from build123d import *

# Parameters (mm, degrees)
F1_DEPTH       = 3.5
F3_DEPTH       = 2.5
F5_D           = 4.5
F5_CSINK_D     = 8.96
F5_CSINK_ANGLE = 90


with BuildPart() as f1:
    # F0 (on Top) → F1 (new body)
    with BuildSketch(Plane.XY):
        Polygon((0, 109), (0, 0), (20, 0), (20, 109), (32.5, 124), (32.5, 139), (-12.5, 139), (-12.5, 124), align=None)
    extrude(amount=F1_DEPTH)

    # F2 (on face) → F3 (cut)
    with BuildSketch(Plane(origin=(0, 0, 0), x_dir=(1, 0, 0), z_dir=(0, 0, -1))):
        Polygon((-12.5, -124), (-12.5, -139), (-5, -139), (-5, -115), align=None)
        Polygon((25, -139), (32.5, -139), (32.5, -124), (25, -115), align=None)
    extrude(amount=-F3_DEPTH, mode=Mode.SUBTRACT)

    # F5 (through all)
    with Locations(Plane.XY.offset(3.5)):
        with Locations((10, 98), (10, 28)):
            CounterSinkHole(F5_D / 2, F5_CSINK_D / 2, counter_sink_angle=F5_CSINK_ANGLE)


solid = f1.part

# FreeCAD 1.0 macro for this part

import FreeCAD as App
import Part
import Sketcher
from FreeCAD import Vector
Q = App.Units.Quantity

doc = App.newDocument("Part")
body = doc.addObject("PartDesign::Body", "Body")

sketch1 = body.newObject("Sketcher::SketchObject", "Sketch")
sketch1.AttachmentSupport = (doc.getObject("XY_Plane"), [""])
sketch1.MapMode = "FlatFace"
sketch1.addGeometry(Part.LineSegment(Vector(0, 109, 0), Vector(0, 0, 0)), False)
sketch1.addGeometry(Part.LineSegment(Vector(0, 0, 0), Vector(20, 0, 0)), False)
sketch1.addGeometry(Part.LineSegment(Vector(20, 0, 0), Vector(20, 109, 0)), False)
sketch1.addGeometry(Part.LineSegment(Vector(20, 109, 0), Vector(32, 124, 0)), False)
sketch1.addGeometry(Part.LineSegment(Vector(32, 124, 0), Vector(32, 139, 0)), False)
sketch1.addGeometry(Part.LineSegment(Vector(32, 139, 0), Vector(-12, 139, 0)), False)
sketch1.addGeometry(Part.LineSegment(Vector(-12, 139, 0), Vector(-12, 124, 0)), False)
sketch1.addGeometry(Part.LineSegment(Vector(-12, 124, 0), Vector(0, 109, 0)), False)
sketch1.addConstraint(Sketcher.Constraint("Coincident", 0, 2, 1, 1))
sketch1.addConstraint(Sketcher.Constraint("Coincident", 1, 2, 2, 1))
sketch1.addConstraint(Sketcher.Constraint("Coincident", 2, 2, 3, 1))
sketch1.addConstraint(Sketcher.Constraint("Coincident", 3, 2, 4, 1))
sketch1.addConstraint(Sketcher.Constraint("Coincident", 4, 2, 5, 1))
sketch1.addConstraint(Sketcher.Constraint("Coincident", 5, 2, 6, 1))
sketch1.addConstraint(Sketcher.Constraint("Coincident", 6, 2, 7, 1))
sketch1.addConstraint(Sketcher.Constraint("Coincident", 7, 2, 0, 1))
sketch1.addConstraint(Sketcher.Constraint("Vertical", 0))
sketch1.addConstraint(Sketcher.Constraint("Horizontal", 1))
sketch1.addConstraint(Sketcher.Constraint("Vertical", 2))
sketch1.addConstraint(Sketcher.Constraint("Vertical", 4))
sketch1.addConstraint(Sketcher.Constraint("Horizontal", 5))
sketch1.addConstraint(Sketcher.Constraint("Vertical", 6))
sketch1.addConstraint(Sketcher.Constraint("Coincident", 0, 2, -1, 1))
sketch1.addConstraint(Sketcher.Constraint("Horizontal", 3, 2, 6, 2))
sketch1.addConstraint(Sketcher.Constraint("Horizontal", 2, 2, 7, 2))
sketch1.addConstraint(Sketcher.Constraint("Equal", 3, 7))
sketch1.addConstraint(Sketcher.Constraint("DistanceX", 1, 1, 1, 2, Q("20 mm")))
sketch1.addConstraint(Sketcher.Constraint("DistanceX", 5, 2, 5, 1, Q("45 mm")))
sketch1.addConstraint(Sketcher.Constraint("DistanceY", 0, 2, 0, 1, Q("109 mm")))
sketch1.addConstraint(Sketcher.Constraint("DistanceY", 4, 1, 4, 2, Q("15 mm")))
sketch1.addConstraint(Sketcher.Constraint("DistanceY", -1, 1, 3, 2, Q("124 mm")))
pad1 = body.newObject("PartDesign::Pad", "Pad")
pad1.Profile = sketch1
pad1.Length = 3.5

sketch2 = body.newObject("Sketcher::SketchObject", "Sketch001")
sketch2.AttachmentSupport = (doc.getObject("XY_Plane"), [""])
sketch2.MapMode = "FlatFace"
sketch2.addGeometry(Part.LineSegment(Vector(-12, 124, 0), Vector(-12, 139, 0)), False)
sketch2.addGeometry(Part.LineSegment(Vector(-12, 139, 0), Vector(-5, 139, 0)), False)
sketch2.addGeometry(Part.LineSegment(Vector(-5, 139, 0), Vector(-5, 115, 0)), False)
sketch2.addGeometry(Part.LineSegment(Vector(-5, 115, 0), Vector(-12, 124, 0)), False)
sketch2.addGeometry(Part.LineSegment(Vector(25, 139, 0), Vector(32, 139, 0)), False)
sketch2.addGeometry(Part.LineSegment(Vector(32, 139, 0), Vector(32, 124, 0)), False)
sketch2.addGeometry(Part.LineSegment(Vector(32, 124, 0), Vector(25, 115, 0)), False)
sketch2.addGeometry(Part.LineSegment(Vector(25, 115, 0), Vector(25, 139, 0)), False)
sketch2.addConstraint(Sketcher.Constraint("Coincident", 0, 2, 1, 1))
sketch2.addConstraint(Sketcher.Constraint("Coincident", 1, 2, 2, 1))
sketch2.addConstraint(Sketcher.Constraint("Coincident", 2, 2, 3, 1))
sketch2.addConstraint(Sketcher.Constraint("Coincident", 3, 2, 0, 1))
sketch2.addConstraint(Sketcher.Constraint("Coincident", 4, 2, 5, 1))
sketch2.addConstraint(Sketcher.Constraint("Coincident", 5, 2, 6, 1))
sketch2.addConstraint(Sketcher.Constraint("Coincident", 6, 2, 7, 1))
sketch2.addConstraint(Sketcher.Constraint("Coincident", 7, 2, 4, 1))
sketch2.addConstraint(Sketcher.Constraint("Vertical", 0))
sketch2.addConstraint(Sketcher.Constraint("Horizontal", 1))
sketch2.addConstraint(Sketcher.Constraint("Vertical", 2))
sketch2.addConstraint(Sketcher.Constraint("Horizontal", 4))
sketch2.addConstraint(Sketcher.Constraint("Vertical", 5))
sketch2.addConstraint(Sketcher.Constraint("Vertical", 7))
sketch2.addConstraint(Sketcher.Constraint("Horizontal", 1, 2, 4, 2))
sketch2.addConstraint(Sketcher.Constraint("Horizontal", 3, 2, 5, 2))
sketch2.addConstraint(Sketcher.Constraint("Horizontal", 2, 2, 6, 2))
sketch2.addConstraint(Sketcher.Constraint("Equal", 1, 4))
sketch2.addConstraint(Sketcher.Constraint("DistanceY", 0, 1, 0, 2, Q("15 mm")))
sketch2.addConstraint(Sketcher.Constraint("DistanceY", 2, 2, 2, 1, Q("24 mm")))
sketch2.addConstraint(Sketcher.Constraint("DistanceX", 1, 1, 1, 2, Q("7.5 mm")))
sketch2.addConstraint(Sketcher.Constraint("DistanceY", -1, 1, 0, 2, Q("139 mm")))
sketch2.addConstraint(Sketcher.Constraint("DistanceX", 1, 2, -1, 1, Q("5 mm")))
sketch2.addConstraint(Sketcher.Constraint("DistanceX", -1, 1, 6, 2, Q("25 mm")))
pocket1 = body.newObject("PartDesign::Pocket", "Pocket")
pocket1.Profile = sketch2
pocket1.Length = 2.5
pocket1.Reversed = True

sketch3 = body.newObject("Sketcher::SketchObject", "Sketch002")
sketch3.AttachmentSupport = (doc.getObject("XY_Plane"), [""])
sketch3.MapMode = "FlatFace"
sketch3.AttachmentOffset = App.Placement(Vector(0, 0, 3.5), App.Rotation())
sketch3.addGeometry(Part.Circle(Vector(10, 98, 0), Vector(0, 0, 1), 2.2), False)
sketch3.addGeometry(Part.Circle(Vector(10, 28, 0), Vector(0, 0, 1), 2.2), False)
sketch3.addConstraint(Sketcher.Constraint("Equal", 0, 1))
sketch3.addConstraint(Sketcher.Constraint("Vertical", 0, 3, 1, 3))
sketch3.addConstraint(Sketcher.Constraint("Diameter", 0, Q("4.5 mm")))
sketch3.addConstraint(Sketcher.Constraint("DistanceX", -1, 1, 0, 3, Q("10 mm")))
sketch3.addConstraint(Sketcher.Constraint("DistanceY", -1, 1, 0, 3, Q("98 mm")))
sketch3.addConstraint(Sketcher.Constraint("DistanceY", -1, 1, 1, 3, Q("28 mm")))
doc.recompute()
hole = body.newObject("PartDesign::Hole", "Hole")
hole.Profile = sketch3
hole.ThreadType = "None"
hole.Diameter = 4.5
hole.DepthType = "ThroughAll"
hole.HoleCutType = "Countersink"
hole.HoleCutDiameter = 8.96
hole.HoleCutCountersinkAngle = 90

doc.recompute()
